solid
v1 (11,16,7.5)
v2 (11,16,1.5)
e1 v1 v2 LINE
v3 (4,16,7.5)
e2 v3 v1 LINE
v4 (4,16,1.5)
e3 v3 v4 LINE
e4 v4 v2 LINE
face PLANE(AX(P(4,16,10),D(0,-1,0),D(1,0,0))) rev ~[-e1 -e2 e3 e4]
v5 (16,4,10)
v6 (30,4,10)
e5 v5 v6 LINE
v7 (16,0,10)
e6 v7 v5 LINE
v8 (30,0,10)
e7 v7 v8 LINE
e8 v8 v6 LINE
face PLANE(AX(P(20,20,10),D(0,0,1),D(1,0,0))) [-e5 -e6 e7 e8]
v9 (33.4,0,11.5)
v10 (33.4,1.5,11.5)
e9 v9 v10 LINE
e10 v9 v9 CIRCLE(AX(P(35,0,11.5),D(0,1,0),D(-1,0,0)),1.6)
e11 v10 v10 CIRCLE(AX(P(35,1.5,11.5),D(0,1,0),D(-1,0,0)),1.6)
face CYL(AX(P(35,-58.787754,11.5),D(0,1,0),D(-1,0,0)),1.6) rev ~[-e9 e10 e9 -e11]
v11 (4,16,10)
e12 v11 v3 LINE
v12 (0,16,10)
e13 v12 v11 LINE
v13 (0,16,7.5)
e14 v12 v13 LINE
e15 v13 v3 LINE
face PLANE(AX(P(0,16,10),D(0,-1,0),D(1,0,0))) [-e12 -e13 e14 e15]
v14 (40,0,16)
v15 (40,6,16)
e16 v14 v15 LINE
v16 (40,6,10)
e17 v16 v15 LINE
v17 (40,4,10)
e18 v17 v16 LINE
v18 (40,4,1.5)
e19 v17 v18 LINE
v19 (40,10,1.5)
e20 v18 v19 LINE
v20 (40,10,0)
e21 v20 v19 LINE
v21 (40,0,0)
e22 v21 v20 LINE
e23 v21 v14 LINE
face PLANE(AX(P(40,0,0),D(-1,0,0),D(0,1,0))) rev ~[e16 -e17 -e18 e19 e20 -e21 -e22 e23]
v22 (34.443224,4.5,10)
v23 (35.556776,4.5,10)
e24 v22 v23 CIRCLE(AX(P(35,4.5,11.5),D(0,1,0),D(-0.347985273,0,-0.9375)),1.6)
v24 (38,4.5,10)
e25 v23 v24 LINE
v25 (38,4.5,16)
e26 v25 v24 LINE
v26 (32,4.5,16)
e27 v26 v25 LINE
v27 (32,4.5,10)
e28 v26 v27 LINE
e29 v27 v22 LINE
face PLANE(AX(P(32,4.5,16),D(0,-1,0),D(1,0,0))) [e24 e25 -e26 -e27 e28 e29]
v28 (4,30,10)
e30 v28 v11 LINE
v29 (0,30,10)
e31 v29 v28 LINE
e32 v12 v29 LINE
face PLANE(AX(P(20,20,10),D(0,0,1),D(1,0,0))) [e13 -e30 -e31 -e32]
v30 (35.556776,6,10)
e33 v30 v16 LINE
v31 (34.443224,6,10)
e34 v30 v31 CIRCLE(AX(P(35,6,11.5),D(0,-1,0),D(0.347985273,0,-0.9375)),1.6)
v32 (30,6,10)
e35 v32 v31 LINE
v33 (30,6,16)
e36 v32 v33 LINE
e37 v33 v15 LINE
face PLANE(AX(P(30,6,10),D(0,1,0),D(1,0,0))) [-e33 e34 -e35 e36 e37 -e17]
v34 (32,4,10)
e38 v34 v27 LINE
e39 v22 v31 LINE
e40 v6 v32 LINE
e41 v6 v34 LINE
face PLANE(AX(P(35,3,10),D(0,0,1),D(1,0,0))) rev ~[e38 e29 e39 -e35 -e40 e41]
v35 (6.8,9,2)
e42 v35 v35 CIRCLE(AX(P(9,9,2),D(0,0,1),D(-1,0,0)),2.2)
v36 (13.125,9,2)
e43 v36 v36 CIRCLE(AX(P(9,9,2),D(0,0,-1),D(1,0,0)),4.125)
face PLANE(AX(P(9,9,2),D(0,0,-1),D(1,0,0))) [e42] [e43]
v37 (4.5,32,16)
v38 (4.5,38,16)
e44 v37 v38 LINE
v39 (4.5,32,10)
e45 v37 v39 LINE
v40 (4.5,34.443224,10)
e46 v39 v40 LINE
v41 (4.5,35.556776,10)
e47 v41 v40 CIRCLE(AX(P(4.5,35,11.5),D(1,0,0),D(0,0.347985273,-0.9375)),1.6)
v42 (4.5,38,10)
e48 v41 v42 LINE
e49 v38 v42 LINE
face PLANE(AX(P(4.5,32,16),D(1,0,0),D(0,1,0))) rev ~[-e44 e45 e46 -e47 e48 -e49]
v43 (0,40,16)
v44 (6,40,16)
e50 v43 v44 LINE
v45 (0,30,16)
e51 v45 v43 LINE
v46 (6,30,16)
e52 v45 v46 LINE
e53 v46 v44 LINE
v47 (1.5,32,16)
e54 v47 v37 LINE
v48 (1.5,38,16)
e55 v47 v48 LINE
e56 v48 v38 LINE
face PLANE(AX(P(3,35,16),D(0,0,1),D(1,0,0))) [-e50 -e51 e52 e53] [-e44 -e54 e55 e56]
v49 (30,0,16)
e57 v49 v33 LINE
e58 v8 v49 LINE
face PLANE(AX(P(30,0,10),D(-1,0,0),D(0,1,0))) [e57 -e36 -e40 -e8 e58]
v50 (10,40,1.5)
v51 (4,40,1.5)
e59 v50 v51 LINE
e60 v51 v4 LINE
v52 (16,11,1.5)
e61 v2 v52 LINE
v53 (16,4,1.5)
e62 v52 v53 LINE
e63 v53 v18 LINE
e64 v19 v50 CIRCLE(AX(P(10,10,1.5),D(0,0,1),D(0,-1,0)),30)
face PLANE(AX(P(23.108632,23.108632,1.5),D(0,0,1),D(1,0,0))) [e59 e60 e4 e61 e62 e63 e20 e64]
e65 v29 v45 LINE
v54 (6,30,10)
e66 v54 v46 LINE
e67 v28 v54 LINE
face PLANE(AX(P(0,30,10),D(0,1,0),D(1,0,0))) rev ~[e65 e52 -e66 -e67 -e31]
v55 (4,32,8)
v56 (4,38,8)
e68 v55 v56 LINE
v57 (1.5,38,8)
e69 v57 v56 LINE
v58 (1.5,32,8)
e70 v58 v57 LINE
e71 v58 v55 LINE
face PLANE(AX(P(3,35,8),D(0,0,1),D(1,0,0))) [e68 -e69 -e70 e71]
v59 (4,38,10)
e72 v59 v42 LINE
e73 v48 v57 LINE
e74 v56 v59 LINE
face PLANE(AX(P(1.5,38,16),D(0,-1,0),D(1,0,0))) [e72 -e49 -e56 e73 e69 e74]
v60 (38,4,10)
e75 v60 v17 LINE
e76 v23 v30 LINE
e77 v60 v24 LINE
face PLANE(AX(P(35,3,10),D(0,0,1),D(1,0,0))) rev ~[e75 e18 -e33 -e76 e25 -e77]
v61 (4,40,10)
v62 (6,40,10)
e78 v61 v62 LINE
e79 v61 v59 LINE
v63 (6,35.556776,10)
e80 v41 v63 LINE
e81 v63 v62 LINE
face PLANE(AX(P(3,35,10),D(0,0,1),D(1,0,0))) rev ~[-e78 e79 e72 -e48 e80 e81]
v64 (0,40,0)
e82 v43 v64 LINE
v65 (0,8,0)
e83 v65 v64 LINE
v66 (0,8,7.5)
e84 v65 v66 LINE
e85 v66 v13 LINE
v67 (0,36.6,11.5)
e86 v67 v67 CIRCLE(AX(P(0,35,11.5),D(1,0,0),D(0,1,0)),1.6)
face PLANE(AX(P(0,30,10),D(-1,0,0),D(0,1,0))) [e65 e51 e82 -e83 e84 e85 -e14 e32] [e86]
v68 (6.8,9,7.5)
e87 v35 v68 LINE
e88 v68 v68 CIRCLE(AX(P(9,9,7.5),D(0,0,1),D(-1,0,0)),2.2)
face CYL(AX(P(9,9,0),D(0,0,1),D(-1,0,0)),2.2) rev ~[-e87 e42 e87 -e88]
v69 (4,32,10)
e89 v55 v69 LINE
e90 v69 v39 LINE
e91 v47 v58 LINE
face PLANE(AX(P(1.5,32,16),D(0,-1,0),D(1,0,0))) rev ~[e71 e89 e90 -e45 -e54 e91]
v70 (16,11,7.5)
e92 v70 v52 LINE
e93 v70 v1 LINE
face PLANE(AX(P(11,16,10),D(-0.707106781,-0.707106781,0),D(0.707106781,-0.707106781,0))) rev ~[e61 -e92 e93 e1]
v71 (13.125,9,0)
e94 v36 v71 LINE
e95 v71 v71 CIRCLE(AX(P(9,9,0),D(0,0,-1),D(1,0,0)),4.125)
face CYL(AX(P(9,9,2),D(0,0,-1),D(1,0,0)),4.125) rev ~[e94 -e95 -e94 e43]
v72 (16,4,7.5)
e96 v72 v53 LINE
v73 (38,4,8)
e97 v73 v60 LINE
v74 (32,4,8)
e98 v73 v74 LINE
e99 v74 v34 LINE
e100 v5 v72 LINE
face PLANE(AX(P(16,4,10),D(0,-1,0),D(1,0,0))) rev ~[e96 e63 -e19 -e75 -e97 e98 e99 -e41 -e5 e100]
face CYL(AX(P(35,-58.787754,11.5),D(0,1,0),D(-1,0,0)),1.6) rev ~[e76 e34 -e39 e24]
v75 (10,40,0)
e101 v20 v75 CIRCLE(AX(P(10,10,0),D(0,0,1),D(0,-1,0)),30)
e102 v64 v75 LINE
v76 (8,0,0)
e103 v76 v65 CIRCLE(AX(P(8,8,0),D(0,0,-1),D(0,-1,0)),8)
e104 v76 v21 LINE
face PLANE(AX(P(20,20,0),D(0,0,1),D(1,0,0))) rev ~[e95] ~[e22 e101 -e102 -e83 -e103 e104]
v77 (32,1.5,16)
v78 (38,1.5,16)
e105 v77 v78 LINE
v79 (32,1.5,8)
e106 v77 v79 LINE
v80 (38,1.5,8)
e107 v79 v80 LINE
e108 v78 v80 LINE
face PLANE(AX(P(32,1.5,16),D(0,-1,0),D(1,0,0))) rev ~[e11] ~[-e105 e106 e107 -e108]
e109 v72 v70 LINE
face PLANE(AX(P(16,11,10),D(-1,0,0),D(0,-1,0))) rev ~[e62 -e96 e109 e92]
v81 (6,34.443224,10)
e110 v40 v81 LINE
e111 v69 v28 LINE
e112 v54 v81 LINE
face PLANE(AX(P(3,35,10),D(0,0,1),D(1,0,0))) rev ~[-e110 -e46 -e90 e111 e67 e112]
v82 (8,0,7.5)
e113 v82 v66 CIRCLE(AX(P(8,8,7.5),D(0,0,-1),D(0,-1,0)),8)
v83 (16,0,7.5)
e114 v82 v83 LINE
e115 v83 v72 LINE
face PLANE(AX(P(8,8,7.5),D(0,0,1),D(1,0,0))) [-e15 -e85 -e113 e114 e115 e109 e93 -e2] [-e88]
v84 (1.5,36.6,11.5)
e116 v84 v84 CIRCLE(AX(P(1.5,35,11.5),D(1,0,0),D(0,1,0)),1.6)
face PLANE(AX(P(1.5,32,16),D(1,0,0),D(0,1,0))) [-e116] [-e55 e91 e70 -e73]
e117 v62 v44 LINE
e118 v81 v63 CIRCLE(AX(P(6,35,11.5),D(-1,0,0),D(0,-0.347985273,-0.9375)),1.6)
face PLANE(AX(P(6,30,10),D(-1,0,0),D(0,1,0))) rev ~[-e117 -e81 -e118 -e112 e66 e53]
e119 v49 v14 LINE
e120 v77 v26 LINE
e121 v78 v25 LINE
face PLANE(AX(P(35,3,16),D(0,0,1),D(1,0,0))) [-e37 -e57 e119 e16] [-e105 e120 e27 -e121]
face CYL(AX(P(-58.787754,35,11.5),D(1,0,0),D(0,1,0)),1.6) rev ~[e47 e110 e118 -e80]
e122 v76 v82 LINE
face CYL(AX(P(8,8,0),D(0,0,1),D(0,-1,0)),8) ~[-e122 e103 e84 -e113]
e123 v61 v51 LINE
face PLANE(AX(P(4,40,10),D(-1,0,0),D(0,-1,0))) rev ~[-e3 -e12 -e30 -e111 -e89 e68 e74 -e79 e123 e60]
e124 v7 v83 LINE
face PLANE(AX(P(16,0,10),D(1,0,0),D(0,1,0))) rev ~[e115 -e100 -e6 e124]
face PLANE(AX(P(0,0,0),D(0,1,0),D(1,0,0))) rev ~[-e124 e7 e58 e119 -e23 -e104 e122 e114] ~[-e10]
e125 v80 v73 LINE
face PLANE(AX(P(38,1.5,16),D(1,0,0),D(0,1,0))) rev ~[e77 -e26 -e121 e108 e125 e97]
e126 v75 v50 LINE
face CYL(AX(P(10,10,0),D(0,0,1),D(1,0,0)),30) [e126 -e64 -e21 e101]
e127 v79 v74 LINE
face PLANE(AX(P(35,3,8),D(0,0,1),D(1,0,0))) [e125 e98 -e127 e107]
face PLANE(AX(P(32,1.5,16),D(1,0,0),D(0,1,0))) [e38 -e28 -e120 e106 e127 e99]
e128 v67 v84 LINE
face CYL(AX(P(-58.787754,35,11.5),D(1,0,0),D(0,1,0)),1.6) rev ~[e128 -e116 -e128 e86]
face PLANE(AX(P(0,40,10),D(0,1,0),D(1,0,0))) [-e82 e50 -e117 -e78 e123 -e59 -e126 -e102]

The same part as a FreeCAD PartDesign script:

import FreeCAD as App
import Part
import Sketcher
from FreeCAD import Vector


def edges_at(feature, points):
    """Names of the edges that pass closest to the given points."""
    edges = feature.Shape.Edges
    near = lambda p: min(range(len(edges)), key=lambda i: edges[i].distToShape(Part.Vertex(*p))[0])
    return sorted({f"Edge{near(p) + 1}" for p in points})


def add_polygon(sketch, points):
    """Adds a closed chain of lines whose ends are joined by coincident constraints."""
    first, n = sketch.GeometryCount, len(points)
    for a, b in zip(points, points[1:] + points[:1]):
        sketch.addGeometry(Part.LineSegment(App.Vector(*a, 0), App.Vector(*b, 0)), False)
    for i in range(n):
        sketch.addConstraint(Sketcher.Constraint("Coincident", first + i, 2, first + (i + 1) % n, 1))

doc = App.newDocument("Part")
body = doc.addObject("PartDesign::Body", "Body")

# Sketch on XY plane
sketch1 = body.newObject("Sketcher::SketchObject", "Sketch")
sketch1.AttachmentSupport = (doc.getObject("XY_Plane"), [""])
sketch1.MapMode = "FlatFace"
add_polygon(sketch1, [(0, 40), (0, 0), (40, 0), (40, 40)])  # lines 0-3
sketch1.addConstraint([
    Sketcher.Constraint("Vertical", 0),
    Sketcher.Constraint("Horizontal", 1),
    Sketcher.Constraint("Vertical", 2),
    Sketcher.Constraint("Horizontal", 3),
    Sketcher.Constraint("Coincident", 0, 2, -1, 1),
    Sketcher.Constraint("Equal", 3, 0),
    Sketcher.Constraint("DistanceX", 1, 1, 1, 2, 40.0),
])
pad1 = body.newObject("PartDesign::Pad", "Pad")
pad1.Profile = sketch1
pad1.Length = 10

# Sketch on XY plane
sketch2 = body.newObject("Sketcher::SketchObject", "Sketch001")
sketch2.AttachmentSupport = (doc.getObject("XY_Plane"), [""])
sketch2.MapMode = "FlatFace"
sketch2.AttachmentOffset = App.Placement(Vector(0, 0, 10), App.Rotation())
add_polygon(sketch2, [(40, 4), (40, 40), (4, 40), (4, 16), (11, 16), (16, 11), (16, 4)])  # lines 0-6
sketch2.addConstraint([
    Sketcher.Constraint("Vertical", 0),
    Sketcher.Constraint("Horizontal", 1),
    Sketcher.Constraint("Vertical", 2),
    Sketcher.Constraint("Horizontal", 3),
    Sketcher.Constraint("Vertical", 5),
    Sketcher.Constraint("Horizontal", 6),
    Sketcher.Constraint("Equal", 1, 0),
    Sketcher.Constraint("Equal", 6, 2),
    Sketcher.Constraint("Equal", 3, 5),
    Sketcher.Constraint("DistanceX", 1, 2, 1, 1, 36.0),
    Sketcher.Constraint("DistanceX", 3, 1, 3, 2, 7.0),
    Sketcher.Constraint("DistanceX", 6, 1, 6, 2, 24.0),
    Sketcher.Constraint("DistanceX", -1, 1, 0, 2, 40.0),
    Sketcher.Constraint("DistanceY", -1, 1, 0, 2, 40.0),
])
pocket1 = body.newObject("PartDesign::Pocket", "Pocket")
pocket1.Profile = sketch2
pocket1.Length = 8.5

# Sketch on XY plane
sketch3 = body.newObject("Sketcher::SketchObject", "Sketch002")
sketch3.AttachmentSupport = (doc.getObject("XY_Plane"), [""])
sketch3.MapMode = "FlatFace"
sketch3.AttachmentOffset = App.Placement(Vector(0, 0, 10), App.Rotation())
add_polygon(sketch3, [(0, 16), (0, 0), (16, 0), (16, 16)])  # lines 0-3
sketch3.addConstraint([
    Sketcher.Constraint("Vertical", 0),
    Sketcher.Constraint("Horizontal", 1),
    Sketcher.Constraint("Vertical", 2),
    Sketcher.Constraint("Horizontal", 3),
    Sketcher.Constraint("Coincident", 0, 2, -1, 1),
    Sketcher.Constraint("Equal", 3, 0),
    Sketcher.Constraint("DistanceX", 1, 1, 1, 2, 16.0),
])
pocket2 = body.newObject("PartDesign::Pocket", "Pocket001")
pocket2.Profile = sketch3
pocket2.Length = 2.5

# Sketch on XY plane
sketch4 = body.newObject("Sketcher::SketchObject", "Sketch003")
sketch4.AttachmentSupport = (doc.getObject("XY_Plane"), [""])
sketch4.MapMode = "FlatFace"
sketch4.addGeometry(Part.Circle(Vector(9, 9, 0), Vector(0, 0, 1), 2.2), False)
sketch4.addConstraint([
    Sketcher.Constraint("Diameter", 0, 4.4),
    Sketcher.Constraint("DistanceX", -1, 1, 0, 3, 9.0),
    Sketcher.Constraint("DistanceY", -1, 1, 0, 3, 9.0),
])
doc.recompute()
hole = body.newObject("PartDesign::Hole", "Hole")
hole.Profile = sketch4
hole.ThreadType = "None"
hole.Diameter = 4.4
hole.DepthType = "ThroughAll"
hole.HoleCutType = "Counterbore"
hole.HoleCutDiameter = 8.25
hole.HoleCutDepth = 2
hole.Reversed = True

# Sketch on XY plane
sketch5 = body.newObject("Sketcher::SketchObject", "Sketch004")
sketch5.AttachmentSupport = (doc.getObject("XY_Plane"), [""])
sketch5.MapMode = "FlatFace"
sketch5.AttachmentOffset = App.Placement(Vector(0, 0, 10), App.Rotation())
add_polygon(sketch5, [(0, 40), (0, 30), (6, 30), (6, 40)])  # lines 0-3
add_polygon(sketch5, [(30, 6), (30, 0), (40, 0), (40, 6)])  # lines 4-7
sketch5.addConstraint([
    Sketcher.Constraint("Vertical", 0),
    Sketcher.Constraint("Horizontal", 1),
    Sketcher.Constraint("Vertical", 2),
    Sketcher.Constraint("Horizontal", 3),
    Sketcher.Constraint("Vertical", 4),
    Sketcher.Constraint("Horizontal", 5),
    Sketcher.Constraint("Vertical", 6),
    Sketcher.Constraint("Horizontal", 7),
    Sketcher.Constraint("PointOnObject", 0, 2, -2),
    Sketcher.Constraint("PointOnObject", 4, 2, -1),
    Sketcher.Constraint("Equal", 7, 0),
    Sketcher.Constraint("Equal", 3, 4),
    Sketcher.Constraint("DistanceX", 1, 1, 1, 2, 6.0),
    Sketcher.Constraint("DistanceX", 5, 1, 5, 2, 10.0),
    Sketcher.Constraint("DistanceY", -1, 1, 0, 2, 30.0),
    Sketcher.Constraint("DistanceX", -1, 1, 4, 2, 30.0),
])
pad2 = body.newObject("PartDesign::Pad", "Pad001")
pad2.Profile = sketch5
pad2.Length = 6

# Sketch on YZ plane
sketch6 = body.newObject("Sketcher::SketchObject", "Sketch005")
sketch6.AttachmentSupport = (doc.getObject("YZ_Plane"), [""])
sketch6.MapMode = "FlatFace"
sketch6.addGeometry(Part.Circle(Vector(35, 11.5, 0), Vector(0, 0, 1), 1.6), False)
sketch6.addConstraint([
    Sketcher.Constraint("Diameter", 0, 3.2),
    Sketcher.Constraint("DistanceX", -1, 1, 0, 3, 35.0),
    Sketcher.Constraint("DistanceY", -1, 1, 0, 3, 11.5),
])
doc.recompute()
hole2 = body.newObject("PartDesign::Hole", "Hole001")
hole2.Profile = sketch6
hole2.ThreadType = "None"
hole2.Diameter = 3.2
hole2.DepthType = "ThroughAll"
hole2.Reversed = True

# Sketch on XY plane
sketch7 = body.newObject("Sketcher::SketchObject", "Sketch006")
sketch7.AttachmentSupport = (doc.getObject("XY_Plane"), [""])
sketch7.MapMode = "FlatFace"
sketch7.AttachmentOffset = App.Placement(Vector(0, 0, 16), App.Rotation())
add_polygon(sketch7, [(1.5, 38), (1.5, 32), (4.5, 32), (4.5, 38)])  # lines 0-3
add_polygon(sketch7, [(32, 4.5), (32, 1.5), (38, 1.5), (38, 4.5)])  # lines 4-7
sketch7.addConstraint([
    Sketcher.Constraint("Vertical", 0),
    Sketcher.Constraint("Horizontal", 1),
    Sketcher.Constraint("Vertical", 2),
    Sketcher.Constraint("Horizontal", 3),
    Sketcher.Constraint("Vertical", 4),
    Sketcher.Constraint("Horizontal", 5),
    Sketcher.Constraint("Vertical", 6),
    Sketcher.Constraint("Horizontal", 7),
    Sketcher.Constraint("Equal", 7, 0),
    Sketcher.Constraint("Equal", 3, 4),
    Sketcher.Constraint("DistanceX", 1, 1, 1, 2, 3.0),
    Sketcher.Constraint("DistanceX", 5, 1, 5, 2, 6.0),
    Sketcher.Constraint("DistanceY", -1, 1, 0, 2, 32.0),
    Sketcher.Constraint("DistanceX", -1, 1, 4, 2, 32.0),
    Sketcher.Constraint("DistanceX", -1, 1, 0, 2, 1.5),
    Sketcher.Constraint("DistanceY", -1, 1, 4, 2, 1.5),
])
pocket3 = body.newObject("PartDesign::Pocket", "Pocket002")
pocket3.Profile = sketch7
pocket3.Length = 8

# Sketch on XZ plane
sketch8 = body.newObject("Sketcher::SketchObject", "Sketch007")
sketch8.AttachmentSupport = (doc.getObject("XZ_Plane"), [""])
sketch8.MapMode = "FlatFace"
sketch8.addGeometry(Part.Circle(Vector(35, 11.5, 0), Vector(0, 0, 1), 1.6), False)
sketch8.addConstraint([
    Sketcher.Constraint("Diameter", 0, 3.2),
    Sketcher.Constraint("DistanceX", -1, 1, 0, 3, 35.0),
    Sketcher.Constraint("DistanceY", -1, 1, 0, 3, 11.5),
])
doc.recompute()
hole3 = body.newObject("PartDesign::Hole", "Hole002")
hole3.Profile = sketch8
hole3.ThreadType = "None"
hole3.Diameter = 3.2
hole3.DepthType = "ThroughAll"
doc.recompute()

fillet = body.newObject("PartDesign::Fillet", "Fillet")
fillet.Base = (hole3, edges_at(hole3, [(40, 40, 0.75)]))
fillet.Radius = 30
doc.recompute()

fillet2 = body.newObject("PartDesign::Fillet", "Fillet001")
fillet2.Base = (fillet, edges_at(fillet, [(0, 0, 3.75)]))
fillet2.Radius = 8

doc.recompute()
